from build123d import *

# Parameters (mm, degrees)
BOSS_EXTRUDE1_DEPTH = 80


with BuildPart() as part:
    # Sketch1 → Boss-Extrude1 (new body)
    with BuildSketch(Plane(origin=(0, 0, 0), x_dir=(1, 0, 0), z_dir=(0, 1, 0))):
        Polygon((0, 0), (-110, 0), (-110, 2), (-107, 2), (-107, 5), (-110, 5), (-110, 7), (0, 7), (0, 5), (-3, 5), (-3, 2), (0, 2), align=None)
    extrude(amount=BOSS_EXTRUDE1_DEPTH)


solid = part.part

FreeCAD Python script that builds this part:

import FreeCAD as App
import Part
import Sketcher
Q = App.Units.Quantity

doc = App.newDocument("Part")
body = doc.addObject("PartDesign::Body", "Body")

# Sketch on XZ plane
sketch1 = body.newObject("Sketcher::SketchObject", "Sketch")
sketch1.AttachmentSupport = (doc.getObject("XZ_Plane"), [""])
sketch1.MapMode = "FlatFace"
sketch1.addGeometry([
    Part.LineSegment(App.Vector(-110, 0, 0), App.Vector(0, 0, 0)),  # 0
    Part.LineSegment(App.Vector(0, 0, 0), App.Vector(0, -2, 0)),  # 1
    Part.LineSegment(App.Vector(0, -2, 0), App.Vector(-3, -2, 0)),  # 2
    Part.LineSegment(App.Vector(-3, -2, 0), App.Vector(-3, -5, 0)),  # 3
    Part.LineSegment(App.Vector(-3, -5, 0), App.Vector(0, -5, 0)),  # 4
    Part.LineSegment(App.Vector(0, -5, 0), App.Vector(0, -7, 0)),  # 5
    Part.LineSegment(App.Vector(0, -7, 0), App.Vector(-110, -7, 0)),  # 6
    Part.LineSegment(App.Vector(-110, -7, 0), App.Vector(-110, -5, 0)),  # 7
    Part.LineSegment(App.Vector(-110, -5, 0), App.Vector(-107, -5, 0)),  # 8
    Part.LineSegment(App.Vector(-107, -5, 0), App.Vector(-107, -2, 0)),  # 9
    Part.LineSegment(App.Vector(-107, -2, 0), App.Vector(-110, -2, 0)),  # 10
    Part.LineSegment(App.Vector(-110, -2, 0), App.Vector(-110, 0, 0)),  # 11
], False)
sketch1.addConstraint([
    Sketcher.Constraint("Coincident", 0, 2, 1, 1),
    Sketcher.Constraint("Coincident", 1, 2, 2, 1),
    Sketcher.Constraint("Coincident", 2, 2, 3, 1),
    Sketcher.Constraint("Coincident", 3, 2, 4, 1),
    Sketcher.Constraint("Coincident", 4, 2, 5, 1),
    Sketcher.Constraint("Coincident", 5, 2, 6, 1),
    Sketcher.Constraint("Coincident", 6, 2, 7, 1),
    Sketcher.Constraint("Coincident", 7, 2, 8, 1),
    Sketcher.Constraint("Coincident", 8, 2, 9, 1),
    Sketcher.Constraint("Coincident", 9, 2, 10, 1),
    Sketcher.Constraint("Coincident", 10, 2, 11, 1),
    Sketcher.Constraint("Coincident", 11, 2, 0, 1),
    Sketcher.Constraint("Horizontal", 0),
    Sketcher.Constraint("Vertical", 1),
    Sketcher.Constraint("Horizontal", 2),
    Sketcher.Constraint("Vertical", 3),
    Sketcher.Constraint("Horizontal", 4),
    Sketcher.Constraint("Vertical", 5),
    Sketcher.Constraint("Horizontal", 6),
    Sketcher.Constraint("Vertical", 7),
    Sketcher.Constraint("Horizontal", 8),
    Sketcher.Constraint("Vertical", 9),
    Sketcher.Constraint("Horizontal", 10),
    Sketcher.Constraint("Vertical", 11),
    Sketcher.Constraint("Coincident", 0, 2, -1, 1),
    Sketcher.Constraint("PointOnObject", 4, 2, -2),
    Sketcher.Constraint("Horizontal", 4, 2, 7, 2),
    Sketcher.Constraint("Horizontal", 2, 2, 9, 2),
    Sketcher.Constraint("Vertical", 7, 2, 10, 2),
    Sketcher.Constraint("Equal", 4, 8),
    Sketcher.Constraint("Equal", 10, 3),
    Sketcher.Constraint("Equal", 1, 5),
    Sketcher.Constraint("DistanceX", 0, 1, 0, 2, Q("110 mm")),
    Sketcher.Constraint("DistanceX", 2, 2, 2, 1, Q("3 mm")),
    Sketcher.Constraint("DistanceY", 1, 2, 1, 1, Q("2 mm")),
])
pad1 = body.newObject("PartDesign::Pad", "Pad")
pad1.Profile = sketch1
pad1.Length = 80
pad1.Reversed = True

doc.recompute()
